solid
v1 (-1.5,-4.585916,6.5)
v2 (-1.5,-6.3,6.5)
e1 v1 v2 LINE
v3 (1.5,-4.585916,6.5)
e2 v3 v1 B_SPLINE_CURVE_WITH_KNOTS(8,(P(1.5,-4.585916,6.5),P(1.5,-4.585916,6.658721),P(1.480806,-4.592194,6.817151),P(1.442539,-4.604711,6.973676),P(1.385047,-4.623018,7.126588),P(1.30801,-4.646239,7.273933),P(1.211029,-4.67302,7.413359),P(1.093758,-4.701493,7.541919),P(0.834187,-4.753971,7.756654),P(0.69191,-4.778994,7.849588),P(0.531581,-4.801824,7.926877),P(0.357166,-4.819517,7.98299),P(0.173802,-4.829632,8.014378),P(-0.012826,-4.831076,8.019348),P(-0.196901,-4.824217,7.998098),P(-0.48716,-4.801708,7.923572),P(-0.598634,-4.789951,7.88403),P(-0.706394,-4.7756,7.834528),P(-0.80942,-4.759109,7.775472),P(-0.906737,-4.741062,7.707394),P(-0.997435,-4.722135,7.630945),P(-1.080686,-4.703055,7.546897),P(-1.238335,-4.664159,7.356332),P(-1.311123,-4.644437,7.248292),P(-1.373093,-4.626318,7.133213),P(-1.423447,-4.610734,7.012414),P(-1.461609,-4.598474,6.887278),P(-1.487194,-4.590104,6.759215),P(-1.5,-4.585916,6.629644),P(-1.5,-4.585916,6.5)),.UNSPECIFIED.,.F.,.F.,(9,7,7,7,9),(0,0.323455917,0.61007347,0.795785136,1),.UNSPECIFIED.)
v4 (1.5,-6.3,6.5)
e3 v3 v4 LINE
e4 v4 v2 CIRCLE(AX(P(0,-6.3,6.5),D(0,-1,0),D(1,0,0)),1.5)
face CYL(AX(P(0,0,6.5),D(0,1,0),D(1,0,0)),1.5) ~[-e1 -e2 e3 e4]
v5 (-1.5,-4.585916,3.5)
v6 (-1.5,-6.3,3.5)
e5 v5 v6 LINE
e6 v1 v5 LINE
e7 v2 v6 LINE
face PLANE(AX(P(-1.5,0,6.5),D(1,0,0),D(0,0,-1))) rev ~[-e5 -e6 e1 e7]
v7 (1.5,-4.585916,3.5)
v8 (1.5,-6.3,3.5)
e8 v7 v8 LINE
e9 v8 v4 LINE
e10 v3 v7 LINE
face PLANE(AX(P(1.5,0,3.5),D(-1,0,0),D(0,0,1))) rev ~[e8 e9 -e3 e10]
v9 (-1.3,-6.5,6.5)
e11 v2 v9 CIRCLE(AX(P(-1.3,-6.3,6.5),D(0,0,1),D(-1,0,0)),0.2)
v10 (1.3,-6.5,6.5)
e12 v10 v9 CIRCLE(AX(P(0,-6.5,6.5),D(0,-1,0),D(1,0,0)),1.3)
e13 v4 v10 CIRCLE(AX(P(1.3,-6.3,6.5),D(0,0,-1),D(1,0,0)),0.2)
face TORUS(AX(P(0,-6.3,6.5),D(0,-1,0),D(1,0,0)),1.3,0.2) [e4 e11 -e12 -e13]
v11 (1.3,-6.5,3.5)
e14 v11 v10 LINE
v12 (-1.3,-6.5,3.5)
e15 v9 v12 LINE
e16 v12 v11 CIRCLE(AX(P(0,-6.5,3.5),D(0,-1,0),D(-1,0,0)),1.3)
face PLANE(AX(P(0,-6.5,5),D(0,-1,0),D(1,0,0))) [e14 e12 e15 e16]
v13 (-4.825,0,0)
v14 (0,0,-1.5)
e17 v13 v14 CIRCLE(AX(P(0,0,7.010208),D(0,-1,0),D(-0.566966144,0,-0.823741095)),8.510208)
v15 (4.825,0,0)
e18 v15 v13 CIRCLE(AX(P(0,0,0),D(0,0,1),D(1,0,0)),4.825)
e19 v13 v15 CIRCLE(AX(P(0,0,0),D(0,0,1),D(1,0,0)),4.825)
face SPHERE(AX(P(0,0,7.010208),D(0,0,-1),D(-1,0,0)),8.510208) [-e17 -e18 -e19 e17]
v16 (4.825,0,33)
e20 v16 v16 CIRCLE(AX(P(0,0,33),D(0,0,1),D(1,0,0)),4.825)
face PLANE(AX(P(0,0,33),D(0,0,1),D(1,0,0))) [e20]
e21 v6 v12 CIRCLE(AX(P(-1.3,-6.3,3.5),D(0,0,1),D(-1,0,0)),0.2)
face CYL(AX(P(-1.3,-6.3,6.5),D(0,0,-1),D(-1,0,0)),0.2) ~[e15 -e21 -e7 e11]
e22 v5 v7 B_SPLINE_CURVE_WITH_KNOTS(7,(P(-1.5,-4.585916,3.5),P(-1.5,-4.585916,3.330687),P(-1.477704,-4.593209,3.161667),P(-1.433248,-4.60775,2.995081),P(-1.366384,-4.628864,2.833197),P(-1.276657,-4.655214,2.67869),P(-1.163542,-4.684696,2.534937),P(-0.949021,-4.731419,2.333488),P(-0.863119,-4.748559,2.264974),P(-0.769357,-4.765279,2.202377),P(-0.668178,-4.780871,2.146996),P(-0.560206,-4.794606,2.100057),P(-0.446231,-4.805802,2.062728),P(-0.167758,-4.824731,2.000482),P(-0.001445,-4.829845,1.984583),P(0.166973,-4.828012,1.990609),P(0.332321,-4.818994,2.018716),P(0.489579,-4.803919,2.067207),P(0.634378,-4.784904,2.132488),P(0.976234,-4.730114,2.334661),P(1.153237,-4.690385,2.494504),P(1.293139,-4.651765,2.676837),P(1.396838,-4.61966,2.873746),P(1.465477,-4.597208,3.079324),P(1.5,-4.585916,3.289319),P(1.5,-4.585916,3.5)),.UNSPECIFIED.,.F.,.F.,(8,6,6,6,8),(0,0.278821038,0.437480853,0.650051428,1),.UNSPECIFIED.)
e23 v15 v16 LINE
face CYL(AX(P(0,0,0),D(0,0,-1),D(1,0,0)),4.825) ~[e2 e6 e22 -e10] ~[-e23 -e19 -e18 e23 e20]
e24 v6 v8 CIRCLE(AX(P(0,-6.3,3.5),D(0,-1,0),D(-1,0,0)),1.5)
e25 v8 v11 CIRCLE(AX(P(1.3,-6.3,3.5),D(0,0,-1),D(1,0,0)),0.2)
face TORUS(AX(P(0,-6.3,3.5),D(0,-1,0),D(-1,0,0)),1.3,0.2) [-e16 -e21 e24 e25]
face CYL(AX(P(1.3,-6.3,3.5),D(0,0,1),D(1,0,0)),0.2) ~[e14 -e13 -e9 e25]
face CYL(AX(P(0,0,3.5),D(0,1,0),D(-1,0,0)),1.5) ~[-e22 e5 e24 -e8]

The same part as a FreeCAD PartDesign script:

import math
import FreeCAD as App
import Part
import Sketcher


def edges_at(feature, points):
    """Names of the edges that pass closest to the given points."""
    edges = feature.Shape.Edges
    near = lambda p: min(range(len(edges)), key=lambda i: edges[i].distToShape(Part.Vertex(*p))[0])
    return sorted({f"Edge{near(p) + 1}" for p in points})

doc = App.newDocument("Part")
body = doc.addObject("PartDesign::Body", "Body")

# Sketch on XY plane
sketch1 = body.newObject("Sketcher::SketchObject", "Sketch")
sketch1.AttachmentSupport = (doc.getObject("XY_Plane"), [""])
sketch1.MapMode = "FlatFace"
sketch1.addGeometry(Part.Circle(App.Vector(0, 0, 0), App.Vector(0, 0, 1), 4.825), False)
sketch1.addConstraint([
    Sketcher.Constraint("Coincident", 0, 3, -1, 1),
    Sketcher.Constraint("Diameter", 0, 9.65),
])
pad1 = body.newObject("PartDesign::Pad", "Pad")
pad1.Profile = sketch1
pad1.Length = 33

# Sketch on XZ plane
sketch2 = body.newObject("Sketcher::SketchObject", "Sketch001")
sketch2.AttachmentSupport = (doc.getObject("XZ_Plane"), [""])
sketch2.MapMode = "FlatFace"
sketch2.addGeometry([
    Part.ArcOfCircle(Part.Circle(App.Vector(0, 3.5, 0), App.Vector(0, 0, 1), 1.5), math.radians(180), math.radians(360)),
    Part.LineSegment(App.Vector(1.5, 3.5, 0), App.Vector(1.5, 6.5, 0)),
    Part.ArcOfCircle(Part.Circle(App.Vector(0, 6.5, 0), App.Vector(0, 0, 1), 1.5), math.radians(0), math.radians(180)),
    Part.LineSegment(App.Vector(-1.5, 6.5, 0), App.Vector(-1.5, 3.5, 0)),
], False)
sketch2.addConstraint([
    Sketcher.Constraint("Tangent", 0, 2, 1, 1),
    Sketcher.Constraint("Tangent", 1, 2, 2, 1),
    Sketcher.Constraint("Tangent", 2, 2, 3, 1),
    Sketcher.Constraint("Tangent", 3, 2, 0, 1),
    Sketcher.Constraint("Vertical", 1),
    Sketcher.Constraint("Vertical", 3),
    Sketcher.Constraint("PointOnObject", 0, 3, -2),
    Sketcher.Constraint("Radius", 0, 1.5),
    Sketcher.Constraint("DistanceY", 1, 1, 1, 2, 3.0),
    Sketcher.Constraint("DistanceY", -1, 1, 0, 3, 3.5),
])
pad2 = body.newObject("PartDesign::Pad", "Pad001")
pad2.Profile = sketch2
pad2.Length = 6.5
doc.recompute()

fillet = body.newObject("PartDesign::Fillet", "Fillet")
fillet.Base = (pad2, edges_at(pad2, [
    (0, -6.5, 2),
    (1.5, -6.5, 5),
    (0, -6.5, 8),
    (-1.5, -6.5, 5),
]))
fillet.Radius = 0.2

# Sketch on XZ plane
sketch3 = body.newObject("Sketcher::SketchObject", "Sketch002")
sketch3.AttachmentSupport = (doc.getObject("XZ_Plane"), [""])
sketch3.MapMode = "FlatFace"
sketch3.addGeometry([
    Part.LineSegment(App.Vector(0, 0, 0), App.Vector(-4.825, 0, 0)),
    Part.ArcOfCircle(Part.Circle(App.Vector(0, 7.010208, 0), App.Vector(0, 0, 1), 8.510208), math.radians(-124.538936), math.radians(-90)),
    Part.LineSegment(App.Vector(0, -1.5, 0), App.Vector(0, 0, 0)),
], False)
sketch3.addConstraint([
    Sketcher.Constraint("Coincident", 0, 2, 1, 1),
    Sketcher.Constraint("Coincident", 1, 2, 2, 1),
    Sketcher.Constraint("Coincident", 2, 2, 0, 1),
    Sketcher.Constraint("Horizontal", 0),
    Sketcher.Constraint("Vertical", 2),
    Sketcher.Constraint("Coincident", 2, 2, -1, 1),
    Sketcher.Constraint("PointOnObject", 1, 3, -2),
    Sketcher.Constraint("DistanceY", 2, 1, 2, 2, 1.5),
    Sketcher.Constraint("DistanceX", 0, 2, 0, 1, 4.825),
])
revolution = body.newObject("PartDesign::Revolution", "Revolution")
revolution.Profile = sketch3
revolution.ReferenceAxis = (sketch3, ["V_Axis"])
revolution.Angle = 360

doc.recompute()
